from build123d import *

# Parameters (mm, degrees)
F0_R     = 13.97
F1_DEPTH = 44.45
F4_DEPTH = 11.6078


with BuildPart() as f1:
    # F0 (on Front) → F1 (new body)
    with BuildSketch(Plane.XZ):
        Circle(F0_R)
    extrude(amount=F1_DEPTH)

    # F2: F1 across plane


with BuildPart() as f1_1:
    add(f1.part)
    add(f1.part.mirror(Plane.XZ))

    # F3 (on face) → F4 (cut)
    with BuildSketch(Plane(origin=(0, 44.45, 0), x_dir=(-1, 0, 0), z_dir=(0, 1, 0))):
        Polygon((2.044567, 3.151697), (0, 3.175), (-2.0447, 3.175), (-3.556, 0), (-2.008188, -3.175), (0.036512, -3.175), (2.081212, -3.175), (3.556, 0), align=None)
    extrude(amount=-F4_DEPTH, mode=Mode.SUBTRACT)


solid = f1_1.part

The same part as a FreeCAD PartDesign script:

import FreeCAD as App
import Part
import Sketcher
Q = App.Units.Quantity

doc = App.newDocument("Part")
body = doc.addObject("PartDesign::Body", "Body")

sketch1 = body.newObject("Sketcher::SketchObject", "Sketch")
sketch1.AttachmentSupport = (doc.getObject("XZ_Plane"), [""])
sketch1.MapMode = "FlatFace"
sketch1.addGeometry(Part.Circle(App.Vector(0, 0, 0), App.Vector(0, 0, 1), 14), False)
sketch1.addConstraint([
    Sketcher.Constraint("Coincident", 0, 3, -1, 1),
    Sketcher.Constraint("Diameter", 0, Q("1.1 in")),
])
pad1 = body.newObject("PartDesign::Pad", "Pad")
pad1.Profile = sketch1
pad1.Length = Q("1.75 in")
body2 = doc.addObject("PartDesign::Body", "Body001")
doc.recompute()

body2.BaseFeature = body
doc.recompute()

mirroring = doc.addObject("Part::Mirroring", "Mirroring")
mirroring.Source = body
mirroring.Base = App.Vector(0, 0, 0)
mirroring.Normal = App.Vector(0, -1, 0)
body3 = doc.addObject("PartDesign::Body", "Body002")
body3.BaseFeature = mirroring
boolean = body2.newObject("PartDesign::Boolean", "Boolean")
boolean.Type = "Fuse"
boolean.addObjects([body3])
doc.recompute()

sketch2 = body2.newObject("Sketcher::SketchObject", "Sketch001")
sketch2.AttachmentSupport = (doc.getObject("XZ_Plane001"), [""])
sketch2.MapMode = "FlatFace"
sketch2.AttachmentOffset = App.Placement(App.Vector(0, 0, -1.75 * 25.4), App.Rotation())
sketch2.addGeometry([
    Part.LineSegment(App.Vector(-2, 3.2, 0), App.Vector(0, 3.2, 0)),
    Part.LineSegment(App.Vector(0, 3.2, 0), App.Vector(2, 3.2, 0)),
    Part.LineSegment(App.Vector(2, 3.2, 0), App.Vector(3.6, 0, 0)),
    Part.LineSegment(App.Vector(3.6, 0, 0), App.Vector(2, -3.2, 0)),
    Part.LineSegment(App.Vector(2, -3.2, 0), App.Vector(-2.1, -3.2, 0)),
    Part.LineSegment(App.Vector(-2.1, -3.2, 0), App.Vector(-3.6, 0, 0)),
    Part.LineSegment(App.Vector(-3.6, 0, 0), App.Vector(-2, 3.2, 0)),
], False)
sketch2.addConstraint([
    Sketcher.Constraint("Coincident", 0, 2, 1, 1),
    Sketcher.Constraint("Coincident", 1, 2, 2, 1),
    Sketcher.Constraint("Coincident", 2, 2, 3, 1),
    Sketcher.Constraint("Coincident", 3, 2, 4, 1),
    Sketcher.Constraint("Coincident", 4, 2, 5, 1),
    Sketcher.Constraint("Coincident", 5, 2, 6, 1),
    Sketcher.Constraint("Coincident", 6, 2, 0, 1),
    Sketcher.Constraint("Horizontal", 1),
    Sketcher.Constraint("Horizontal", 4),
    Sketcher.Constraint("Symmetric", 2, 2, 5, 2, -1, 1),
    Sketcher.Constraint("PointOnObject", 0, 2, -2),
    Sketcher.Constraint("PointOnObject", 2, 2, -1),
    Sketcher.Constraint("DistanceX", 4, 2, 4, 1, Q("0.161 in")),
    Sketcher.Constraint("DistanceX", -1, 1, 2, 2, Q("0.14 in")),
    Sketcher.Constraint("DistanceY", 3, 2, 1, 2, Q("0.25 in")),
    Sketcher.Constraint("DistanceX", 1, 1, 1, 2, Q("0.0805 in")),
    Sketcher.Constraint("DistanceY", -1, 1, 0, 2, Q("0.125 in")),
    Sketcher.Constraint("Distance", 0, Q("0.0805 in")),
    Sketcher.Constraint("Distance", 6, Q("3.495372 mm")),
    Sketcher.Constraint("DistanceX", -1, 1, 3, 2, Q("2.008188 mm")),
])
pocket1 = body2.newObject("PartDesign::Pocket", "Pocket")
pocket1.Profile = sketch2
pocket1.Length = Q("0.457 in")
pocket1.Reversed = True
mirroring.Visibility = False

doc.recompute()
